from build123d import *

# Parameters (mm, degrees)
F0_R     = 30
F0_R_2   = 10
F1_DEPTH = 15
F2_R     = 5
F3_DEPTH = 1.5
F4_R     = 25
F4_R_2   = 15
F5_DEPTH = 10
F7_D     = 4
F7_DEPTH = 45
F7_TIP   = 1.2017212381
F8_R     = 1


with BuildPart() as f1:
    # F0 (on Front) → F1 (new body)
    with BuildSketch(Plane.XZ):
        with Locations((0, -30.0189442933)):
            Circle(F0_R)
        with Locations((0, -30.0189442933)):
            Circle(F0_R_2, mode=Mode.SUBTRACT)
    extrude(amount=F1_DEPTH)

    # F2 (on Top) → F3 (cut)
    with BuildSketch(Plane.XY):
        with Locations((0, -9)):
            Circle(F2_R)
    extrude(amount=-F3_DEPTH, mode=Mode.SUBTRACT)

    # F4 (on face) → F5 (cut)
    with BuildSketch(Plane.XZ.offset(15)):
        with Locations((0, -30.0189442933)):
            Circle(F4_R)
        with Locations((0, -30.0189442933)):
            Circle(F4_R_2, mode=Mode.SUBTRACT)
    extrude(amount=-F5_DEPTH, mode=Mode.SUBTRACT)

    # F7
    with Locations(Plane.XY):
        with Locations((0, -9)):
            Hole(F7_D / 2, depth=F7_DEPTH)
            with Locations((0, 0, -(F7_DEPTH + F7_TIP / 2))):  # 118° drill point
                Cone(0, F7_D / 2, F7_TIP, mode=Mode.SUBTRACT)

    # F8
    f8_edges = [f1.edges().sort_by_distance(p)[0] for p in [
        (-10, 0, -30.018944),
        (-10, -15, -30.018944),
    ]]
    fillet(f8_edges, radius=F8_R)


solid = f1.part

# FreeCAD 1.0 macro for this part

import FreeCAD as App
import Part
import Sketcher
from FreeCAD import Vector


def edges_at(feature, points):
    """Names of the edges that pass closest to the given points."""
    edges = feature.Shape.Edges
    near = lambda p: min(range(len(edges)), key=lambda i: edges[i].distToShape(Part.Vertex(*p))[0])
    return sorted({f"Edge{near(p) + 1}" for p in points})

doc = App.newDocument("Part")
body = doc.addObject("PartDesign::Body", "Body")

# Sketch on XZ plane
sketch1 = doc.addObject("Sketcher::SketchObject", "Sketch")
body.addObject(sketch1)
sketch1.AttachmentSupport = (doc.XZ_Plane, [""])
sketch1.MapMode = "FlatFace"
sketch1.addGeometry([
    Part.Circle(Vector(0, -30, 0), Vector(0, 0, 1), 30),
    Part.Circle(Vector(0, -30, 0), Vector(0, 0, 1), 10),
], False)
sketch1.addConstraint([
    Sketcher.Constraint("Coincident", 1, 3, 0, 3),
    Sketcher.Constraint("PointOnObject", 0, 3, -2),
    Sketcher.Constraint("Diameter", 0, 60.0),
    Sketcher.Constraint("Diameter", 1, 20.0),
    Sketcher.Constraint("DistanceY", 0, 3, -1, 1, 30.018944),
])
pad1 = doc.addObject("PartDesign::Pad", "Pad")
body.addObject(pad1)
pad1.Profile = sketch1
pad1.Length = 15

# Sketch on XY plane
sketch2 = doc.addObject("Sketcher::SketchObject", "Sketch001")
body.addObject(sketch2)
sketch2.AttachmentSupport = (doc.XY_Plane, [""])
sketch2.MapMode = "FlatFace"
sketch2.addGeometry(Part.Circle(Vector(0, -9, 0), Vector(0, 0, 1), 5), False)
sketch2.addConstraint([
    Sketcher.Constraint("PointOnObject", 0, 3, -2),
    Sketcher.Constraint("Diameter", 0, 10.0),
    Sketcher.Constraint("DistanceY", 0, 3, -1, 1, 9.0),
])
pocket1 = doc.addObject("PartDesign::Pocket", "Pocket")
body.addObject(pocket1)
pocket1.Profile = sketch2
pocket1.Length = 1.5

# Sketch on XZ plane
sketch3 = doc.addObject("Sketcher::SketchObject", "Sketch002")
body.addObject(sketch3)
sketch3.AttachmentSupport = (doc.XZ_Plane, [""])
sketch3.MapMode = "FlatFace"
sketch3.AttachmentOffset = App.Placement(Vector(0, 0, 15), App.Rotation())
sketch3.addGeometry([
    Part.Circle(Vector(0, -30, 0), Vector(0, 0, 1), 25),
    Part.Circle(Vector(0, -30, 0), Vector(0, 0, 1), 15),
], False)
sketch3.addConstraint([
    Sketcher.Constraint("Coincident", 1, 3, 0, 3),
    Sketcher.Constraint("PointOnObject", 0, 3, -2),
    Sketcher.Constraint("Diameter", 0, 50.0),
    Sketcher.Constraint("Diameter", 1, 30.0),
    Sketcher.Constraint("DistanceY", 0, 3, -1, 1, 30.018944),
])
pocket2 = doc.addObject("PartDesign::Pocket", "Pocket001")
body.addObject(pocket2)
pocket2.Profile = sketch3
pocket2.Length = 10

# Sketch on XY plane
sketch4 = doc.addObject("Sketcher::SketchObject", "Sketch003")
body.addObject(sketch4)
sketch4.AttachmentSupport = (doc.XY_Plane, [""])
sketch4.MapMode = "FlatFace"
sketch4.addGeometry(Part.Circle(Vector(0, -9, 0), Vector(0, 0, 1), 2), False)
sketch4.addConstraint([
    Sketcher.Constraint("PointOnObject", 0, 3, -2),
    Sketcher.Constraint("Diameter", 0, 4.0),
    Sketcher.Constraint("DistanceY", 0, 3, -1, 1, 9.0),
])
doc.recompute()
hole = doc.addObject("PartDesign::Hole", "Hole")
body.addObject(hole)
hole.Profile = sketch4
hole.ThreadType = "None"
hole.Diameter = 4
hole.DepthType = "Dimension"
hole.Depth = 45
hole.DrillPoint = "Angled"
hole.DrillPointAngle = 118
doc.recompute()

fillet = doc.addObject("PartDesign::Fillet", "Fillet")
body.addObject(fillet)
fillet.Base = (hole, edges_at(hole, [(-10, 0, -30.019), (-10, -15, -30.019)]))
fillet.Radius = 1

doc.recompute()
